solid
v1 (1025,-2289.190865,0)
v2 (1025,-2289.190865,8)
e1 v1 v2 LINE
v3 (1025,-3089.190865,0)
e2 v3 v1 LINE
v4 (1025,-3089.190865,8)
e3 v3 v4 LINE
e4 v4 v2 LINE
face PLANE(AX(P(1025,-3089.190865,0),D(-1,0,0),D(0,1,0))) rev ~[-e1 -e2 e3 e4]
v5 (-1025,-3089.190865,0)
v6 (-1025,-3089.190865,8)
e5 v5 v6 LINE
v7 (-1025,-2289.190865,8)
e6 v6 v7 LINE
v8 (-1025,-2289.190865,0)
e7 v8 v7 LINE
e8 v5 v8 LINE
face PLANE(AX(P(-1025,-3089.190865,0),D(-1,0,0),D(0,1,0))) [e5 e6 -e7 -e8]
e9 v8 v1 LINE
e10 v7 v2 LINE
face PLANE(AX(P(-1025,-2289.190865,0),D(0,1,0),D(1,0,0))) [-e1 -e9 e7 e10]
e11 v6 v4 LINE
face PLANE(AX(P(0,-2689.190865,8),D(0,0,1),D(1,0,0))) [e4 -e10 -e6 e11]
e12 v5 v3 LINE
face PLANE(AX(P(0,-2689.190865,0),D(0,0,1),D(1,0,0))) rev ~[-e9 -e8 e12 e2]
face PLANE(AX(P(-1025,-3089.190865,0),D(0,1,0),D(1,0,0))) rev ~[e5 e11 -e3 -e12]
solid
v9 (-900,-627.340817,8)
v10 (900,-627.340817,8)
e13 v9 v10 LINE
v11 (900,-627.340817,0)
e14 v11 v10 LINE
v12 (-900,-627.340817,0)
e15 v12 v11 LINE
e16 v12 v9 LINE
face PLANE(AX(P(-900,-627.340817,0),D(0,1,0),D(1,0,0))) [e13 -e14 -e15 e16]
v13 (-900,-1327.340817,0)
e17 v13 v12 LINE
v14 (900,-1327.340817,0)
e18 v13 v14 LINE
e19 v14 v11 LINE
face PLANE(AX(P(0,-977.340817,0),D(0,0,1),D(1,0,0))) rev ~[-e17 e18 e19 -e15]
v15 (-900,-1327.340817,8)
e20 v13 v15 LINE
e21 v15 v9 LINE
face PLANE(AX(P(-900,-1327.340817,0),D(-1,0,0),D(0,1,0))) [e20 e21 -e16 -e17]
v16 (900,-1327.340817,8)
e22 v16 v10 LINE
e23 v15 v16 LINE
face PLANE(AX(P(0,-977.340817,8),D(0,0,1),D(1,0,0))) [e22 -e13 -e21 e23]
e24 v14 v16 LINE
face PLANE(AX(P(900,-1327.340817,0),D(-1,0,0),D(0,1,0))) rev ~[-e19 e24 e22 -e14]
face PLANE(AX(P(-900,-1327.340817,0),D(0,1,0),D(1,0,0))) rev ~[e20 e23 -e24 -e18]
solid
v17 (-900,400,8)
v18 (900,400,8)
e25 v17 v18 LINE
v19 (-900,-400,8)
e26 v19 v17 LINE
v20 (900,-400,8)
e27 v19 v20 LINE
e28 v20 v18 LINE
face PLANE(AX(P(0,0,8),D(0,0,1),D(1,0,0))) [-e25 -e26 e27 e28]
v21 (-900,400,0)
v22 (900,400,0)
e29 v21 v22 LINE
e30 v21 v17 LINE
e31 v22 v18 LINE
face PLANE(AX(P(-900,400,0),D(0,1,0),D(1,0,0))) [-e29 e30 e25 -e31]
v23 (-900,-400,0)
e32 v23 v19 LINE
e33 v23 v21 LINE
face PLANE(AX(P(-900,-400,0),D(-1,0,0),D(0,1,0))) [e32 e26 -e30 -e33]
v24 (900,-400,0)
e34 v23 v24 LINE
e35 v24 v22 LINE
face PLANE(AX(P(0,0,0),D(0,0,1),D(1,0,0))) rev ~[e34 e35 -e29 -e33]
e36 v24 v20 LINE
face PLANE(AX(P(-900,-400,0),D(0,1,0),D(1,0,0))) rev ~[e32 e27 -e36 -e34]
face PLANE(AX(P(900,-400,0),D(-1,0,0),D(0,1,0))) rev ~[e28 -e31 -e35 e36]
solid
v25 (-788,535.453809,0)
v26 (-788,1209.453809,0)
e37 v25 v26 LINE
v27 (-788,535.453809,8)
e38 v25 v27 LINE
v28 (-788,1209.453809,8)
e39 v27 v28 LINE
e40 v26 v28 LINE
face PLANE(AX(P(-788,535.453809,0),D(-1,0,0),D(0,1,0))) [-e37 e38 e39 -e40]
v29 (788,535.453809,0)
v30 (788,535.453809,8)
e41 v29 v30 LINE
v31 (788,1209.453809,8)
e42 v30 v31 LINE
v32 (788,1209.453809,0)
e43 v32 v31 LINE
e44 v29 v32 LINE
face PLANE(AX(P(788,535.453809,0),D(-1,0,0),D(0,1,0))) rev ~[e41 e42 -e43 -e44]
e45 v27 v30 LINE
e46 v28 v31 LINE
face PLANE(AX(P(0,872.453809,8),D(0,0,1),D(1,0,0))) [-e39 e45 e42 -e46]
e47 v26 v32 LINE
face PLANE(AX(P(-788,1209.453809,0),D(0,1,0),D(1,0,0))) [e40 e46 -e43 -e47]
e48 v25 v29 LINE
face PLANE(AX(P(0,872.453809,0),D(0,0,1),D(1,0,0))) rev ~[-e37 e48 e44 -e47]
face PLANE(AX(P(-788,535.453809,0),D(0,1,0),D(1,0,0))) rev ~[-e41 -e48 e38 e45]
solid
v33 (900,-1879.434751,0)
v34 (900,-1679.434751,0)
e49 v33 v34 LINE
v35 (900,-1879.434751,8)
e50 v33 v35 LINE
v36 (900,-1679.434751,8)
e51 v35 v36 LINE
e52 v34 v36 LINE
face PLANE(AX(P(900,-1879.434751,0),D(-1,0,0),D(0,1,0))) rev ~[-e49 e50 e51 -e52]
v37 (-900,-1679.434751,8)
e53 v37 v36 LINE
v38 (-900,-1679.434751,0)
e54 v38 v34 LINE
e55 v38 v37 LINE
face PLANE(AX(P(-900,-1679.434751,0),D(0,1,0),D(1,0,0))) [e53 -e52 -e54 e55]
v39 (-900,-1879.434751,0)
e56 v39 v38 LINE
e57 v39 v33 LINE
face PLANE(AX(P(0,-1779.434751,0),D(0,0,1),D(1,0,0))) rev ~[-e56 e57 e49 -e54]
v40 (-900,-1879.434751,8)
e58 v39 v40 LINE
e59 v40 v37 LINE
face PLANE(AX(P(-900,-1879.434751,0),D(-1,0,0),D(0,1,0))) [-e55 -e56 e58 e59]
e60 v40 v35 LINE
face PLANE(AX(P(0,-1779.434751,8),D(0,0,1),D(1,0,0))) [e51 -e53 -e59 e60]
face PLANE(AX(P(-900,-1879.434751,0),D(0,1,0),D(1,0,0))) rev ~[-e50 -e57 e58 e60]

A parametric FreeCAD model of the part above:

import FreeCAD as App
import Part
import Sketcher

V = App.Vector


def add_polygon(sketch, points):
    """Adds a closed chain of lines whose ends are joined by coincident constraints."""
    first, n = sketch.GeometryCount, len(points)
    for a, b in zip(points, points[1:] + points[:1]):
        sketch.addGeometry(Part.LineSegment(App.Vector(*a, 0), App.Vector(*b, 0)), False)
    for i in range(n):
        sketch.addConstraint(Sketcher.Constraint("Coincident", first + i, 2, first + (i + 1) % n, 1))

doc = App.newDocument("Part")
params = doc.addObject("Spreadsheet::Sheet", "Params")
for row, (alias, value) in enumerate([
    ("sketch1_width", "1800 mm"),
    ("sketch1_width2", "1576 mm"),
    ("sketch1_width3", "2050 mm"),
    ("sketch1_height", "800 mm"),
    ("sketch1_height2", "674 mm"),
    ("pad1_length", "8 mm"),
], start=1):
    params.set(f"A{row}", alias)
    params.set(f"B{row}", "=" + value)
    params.setAlias(f"B{row}", alias)

body = doc.addObject("PartDesign::Body", "Body")
body.AllowCompound = True

sketch1 = doc.addObject("Sketcher::SketchObject", "Sketch")
body.addObject(sketch1)
sketch1.AttachmentSupport = (doc.XY_Plane, [""])
sketch1.MapMode = "FlatFace"
add_polygon(sketch1, [(-900, 400), (-900, -400), (900, -400), (900, 400)])
add_polygon(sketch1, [(-788, 1209), (-788, 535), (788, 535), (788, 1209)])
add_polygon(sketch1, [(-900, -627), (-900, -1327), (900, -1327), (900, -627)])
add_polygon(sketch1, [(-900, -1679), (-900, -1879), (900, -1879), (900, -1679)])
add_polygon(sketch1, [(-1025, -2289), (-1025, -3089), (1025, -3089), (1025, -2289)])
sketch1.addConstraint([
    Sketcher.Constraint("Vertical", 0),
    Sketcher.Constraint("Horizontal", 1),
    Sketcher.Constraint("Vertical", 2),
    Sketcher.Constraint("Horizontal", 3),
    Sketcher.Constraint("Vertical", 4),
    Sketcher.Constraint("Horizontal", 5),
    Sketcher.Constraint("Vertical", 6),
    Sketcher.Constraint("Horizontal", 7),
    Sketcher.Constraint("Vertical", 8),
    Sketcher.Constraint("Horizontal", 9),
    Sketcher.Constraint("Vertical", 10),
    Sketcher.Constraint("Horizontal", 11),
    Sketcher.Constraint("Vertical", 12),
    Sketcher.Constraint("Horizontal", 13),
    Sketcher.Constraint("Vertical", 14),
    Sketcher.Constraint("Horizontal", 15),
    Sketcher.Constraint("Vertical", 16),
    Sketcher.Constraint("Horizontal", 17),
    Sketcher.Constraint("Vertical", 18),
    Sketcher.Constraint("Horizontal", 19),
    Sketcher.Constraint("Symmetric", 0, 2, 2, 2, -1, 1),
    Sketcher.Constraint("Vertical", 3, 2, 8, 2),
    Sketcher.Constraint("Vertical", 2, 2, 9, 2),
    Sketcher.Constraint("Vertical", 11, 2, 12, 2),
    Sketcher.Constraint("Vertical", 10, 2, 13, 2),
    Sketcher.Constraint("Equal", 2, 16),
    Sketcher.Constraint("DistanceX", 1, 1, 1, 2, 1800.0),
    Sketcher.Constraint("DistanceX", 5, 1, 5, 2, 1576.0),
    Sketcher.Constraint("DistanceX", 17, 1, 17, 2, 2050.0),
    Sketcher.Constraint("DistanceY", 0, 2, 0, 1, 800.0),
    Sketcher.Constraint("DistanceY", 4, 2, 4, 1, 674.0),
    Sketcher.Constraint("DistanceY", 8, 2, 8, 1, 700.0),
    Sketcher.Constraint("DistanceY", 12, 2, 12, 1, 200.0),
    Sketcher.Constraint("DistanceX", 4, 2, -1, 1, 788.0),
    Sketcher.Constraint("DistanceX", 16, 2, -1, 1, 1025.0),
    Sketcher.Constraint("DistanceY", -1, 1, 4, 2, 535.453809),
    Sketcher.Constraint("DistanceY", 12, 2, -1, 1, 1879.434751),
    Sketcher.Constraint("DistanceY", 16, 2, 8, 2, 1761.850048),
    Sketcher.Constraint("DistanceY", 8, 2, -1, 1, 1327.340817),
])
sketch1.setExpression("Constraints[46]", "Params.sketch1_width")
sketch1.setExpression("Constraints[47]", "Params.sketch1_width2")
sketch1.setExpression("Constraints[48]", "Params.sketch1_width3")
sketch1.setExpression("Constraints[49]", "Params.sketch1_height")
sketch1.setExpression("Constraints[50]", "Params.sketch1_height2")
pad1 = doc.addObject("PartDesign::Pad", "Pad")
body.addObject(pad1)
pad1.Profile = sketch1
pad1.setExpression("Length", "Params.pad1_length")

doc.recompute()
